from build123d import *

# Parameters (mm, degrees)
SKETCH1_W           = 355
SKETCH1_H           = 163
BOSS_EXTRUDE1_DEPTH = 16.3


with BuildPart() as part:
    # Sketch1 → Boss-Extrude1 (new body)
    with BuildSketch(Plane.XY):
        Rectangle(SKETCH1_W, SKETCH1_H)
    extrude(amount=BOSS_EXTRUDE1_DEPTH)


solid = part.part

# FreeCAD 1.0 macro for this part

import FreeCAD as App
import Part
import Sketcher

V = App.Vector


def add_polygon(sketch, points):
    """Adds a closed chain of lines whose ends are joined by coincident constraints."""
    first, n = sketch.GeometryCount, len(points)
    for a, b in zip(points, points[1:] + points[:1]):
        sketch.addGeometry(Part.LineSegment(App.Vector(*a, 0), App.Vector(*b, 0)), False)
    for i in range(n):
        sketch.addConstraint(Sketcher.Constraint("Coincident", first + i, 2, first + (i + 1) % n, 1))

doc = App.newDocument("Part")
body = doc.addObject("PartDesign::Body", "Body")

sketch1 = body.newObject("Sketcher::SketchObject", "Sketch")
sketch1.AttachmentSupport = (doc.getObject("XY_Plane"), [""])
sketch1.MapMode = "FlatFace"
add_polygon(sketch1, [(-178, 82), (-178, -82), (178, -82), (178, 82)])
sketch1.addConstraint([
    Sketcher.Constraint("Vertical", 0),
    Sketcher.Constraint("Horizontal", 1),
    Sketcher.Constraint("Vertical", 2),
    Sketcher.Constraint("Horizontal", 3),
    Sketcher.Constraint("Symmetric", 0, 2, 2, 2, -1, 1),
    Sketcher.Constraint("DistanceX", 1, 1, 1, 2, 355.0),
    Sketcher.Constraint("DistanceY", 0, 2, 0, 1, 163.0),
])
pad1 = body.newObject("PartDesign::Pad", "Pad")
pad1.Profile = sketch1
pad1.Length = 16.3

doc.recompute()
